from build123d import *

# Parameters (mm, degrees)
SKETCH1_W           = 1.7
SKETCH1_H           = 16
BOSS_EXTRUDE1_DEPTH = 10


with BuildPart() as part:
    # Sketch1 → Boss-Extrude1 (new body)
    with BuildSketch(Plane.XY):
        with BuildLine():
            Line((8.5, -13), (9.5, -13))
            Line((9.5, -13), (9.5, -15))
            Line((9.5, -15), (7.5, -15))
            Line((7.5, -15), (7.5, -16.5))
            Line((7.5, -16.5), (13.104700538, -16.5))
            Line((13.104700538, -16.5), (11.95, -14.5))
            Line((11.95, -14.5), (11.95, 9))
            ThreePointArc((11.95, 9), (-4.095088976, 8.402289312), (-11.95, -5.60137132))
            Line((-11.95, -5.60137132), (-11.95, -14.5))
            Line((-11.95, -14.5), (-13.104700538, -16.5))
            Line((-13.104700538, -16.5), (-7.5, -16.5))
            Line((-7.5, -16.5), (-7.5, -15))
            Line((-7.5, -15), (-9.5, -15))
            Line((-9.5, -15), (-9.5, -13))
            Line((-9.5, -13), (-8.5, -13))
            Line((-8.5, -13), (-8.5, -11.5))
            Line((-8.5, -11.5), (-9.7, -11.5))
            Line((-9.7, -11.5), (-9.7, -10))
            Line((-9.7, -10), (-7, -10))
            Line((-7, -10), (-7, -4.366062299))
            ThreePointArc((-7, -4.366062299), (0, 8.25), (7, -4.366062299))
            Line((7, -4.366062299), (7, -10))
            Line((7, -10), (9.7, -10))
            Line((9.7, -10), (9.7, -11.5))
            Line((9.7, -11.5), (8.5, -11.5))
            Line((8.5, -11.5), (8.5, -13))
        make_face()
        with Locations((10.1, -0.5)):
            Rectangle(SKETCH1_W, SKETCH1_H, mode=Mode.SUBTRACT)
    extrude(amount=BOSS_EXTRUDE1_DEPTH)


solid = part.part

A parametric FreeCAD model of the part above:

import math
import FreeCAD as App
import Part
import Sketcher

V = App.Vector
Q = App.Units.Quantity


def add_polygon(sketch, points):
    """Adds a closed chain of lines whose ends are joined by coincident constraints."""
    first, n = sketch.GeometryCount, len(points)
    for a, b in zip(points, points[1:] + points[:1]):
        sketch.addGeometry(Part.LineSegment(App.Vector(*a, 0), App.Vector(*b, 0)), False)
    for i in range(n):
        sketch.addConstraint(Sketcher.Constraint("Coincident", first + i, 2, first + (i + 1) % n, 1))

doc = App.newDocument("Part")
body = doc.addObject("PartDesign::Body", "Body")

# Sketch on XY plane
sketch1 = body.newObject("Sketcher::SketchObject", "Sketch")
sketch1.AttachmentSupport = (doc.getObject("XY_Plane"), [""])
sketch1.MapMode = "FlatFace"
sketch1.addGeometry(Part.LineSegment(V(8.5, -13, 0), V(9.5, -13, 0)), False)  # 0
sketch1.addGeometry(Part.LineSegment(V(9.5, -13, 0), V(9.5, -15, 0)), False)  # 1
sketch1.addGeometry(Part.LineSegment(V(9.5, -15, 0), V(7.5, -15, 0)), False)  # 2
sketch1.addGeometry(Part.LineSegment(V(7.5, -15, 0), V(7.5, -16.5, 0)), False)  # 3
sketch1.addGeometry(Part.LineSegment(V(7.5, -16.5, 0), V(13.1, -16.5, 0)), False)  # 4
sketch1.addGeometry(Part.LineSegment(V(13.1, -16.5, 0), V(11.9, -14.5, 0)), False)  # 5
sketch1.addGeometry(Part.LineSegment(V(11.9, -14.5, 0), V(11.9, 9, 0)), False)  # 6
sketch1.addGeometry(Part.ArcOfCircle(Part.Circle(V(4.5, -5.6, 0), V(0, 0, 1), 16.4), math.radians(63), math.radians(180)), False)  # 7
sketch1.addGeometry(Part.LineSegment(V(-11.9, -5.6, 0), V(-11.9, -14.5, 0)), False)  # 8
sketch1.addGeometry(Part.LineSegment(V(-11.9, -14.5, 0), V(-13.1, -16.5, 0)), False)  # 9
sketch1.addGeometry(Part.LineSegment(V(-13.1, -16.5, 0), V(-7.5, -16.5, 0)), False)  # 10
sketch1.addGeometry(Part.LineSegment(V(-7.5, -16.5, 0), V(-7.5, -15, 0)), False)  # 11
sketch1.addGeometry(Part.LineSegment(V(-7.5, -15, 0), V(-9.5, -15, 0)), False)  # 12
sketch1.addGeometry(Part.LineSegment(V(-9.5, -15, 0), V(-9.5, -13, 0)), False)  # 13
sketch1.addGeometry(Part.LineSegment(V(-9.5, -13, 0), V(-8.5, -13, 0)), False)  # 14
sketch1.addGeometry(Part.LineSegment(V(-8.5, -13, 0), V(-8.5, -11.5, 0)), False)  # 15
sketch1.addGeometry(Part.LineSegment(V(-8.5, -11.5, 0), V(-9.7, -11.5, 0)), False)  # 16
sketch1.addGeometry(Part.LineSegment(V(-9.7, -11.5, 0), V(-9.7, -10, 0)), False)  # 17
sketch1.addGeometry(Part.LineSegment(V(-9.7, -10, 0), V(-7, -10, 0)), False)  # 18
sketch1.addGeometry(Part.LineSegment(V(-7, -10, 0), V(-7, -4.4, 0)), False)  # 19
sketch1.addGeometry(Part.ArcOfCircle(Part.Circle(V(0, 0, 0), V(0, 0, 1), 8.2), math.radians(-32), math.radians(212)), False)  # 20
sketch1.addGeometry(Part.LineSegment(V(7, -4.4, 0), V(7, -10, 0)), False)  # 21
sketch1.addGeometry(Part.LineSegment(V(7, -10, 0), V(9.7, -10, 0)), False)  # 22
sketch1.addGeometry(Part.LineSegment(V(9.7, -10, 0), V(9.7, -11.5, 0)), False)  # 23
sketch1.addGeometry(Part.LineSegment(V(9.7, -11.5, 0), V(8.5, -11.5, 0)), False)  # 24
sketch1.addGeometry(Part.LineSegment(V(8.5, -11.5, 0), V(8.5, -13, 0)), False)  # 25
add_polygon(sketch1, [(10.9, -8.5), (9.2, -8.5), (9.2, 7.5), (10.9, 7.5)])  # lines 26-29
sketch1.addConstraint([
    Sketcher.Constraint("Coincident", 0, 2, 1, 1),
    Sketcher.Constraint("Coincident", 1, 2, 2, 1),
    Sketcher.Constraint("Coincident", 2, 2, 3, 1),
    Sketcher.Constraint("Coincident", 3, 2, 4, 1),
    Sketcher.Constraint("Coincident", 4, 2, 5, 1),
    Sketcher.Constraint("Coincident", 5, 2, 6, 1),
    Sketcher.Constraint("Coincident", 6, 2, 7, 1),
    Sketcher.Constraint("Tangent", 7, 2, 8, 1),
    Sketcher.Constraint("Coincident", 8, 2, 9, 1),
    Sketcher.Constraint("Coincident", 9, 2, 10, 1),
    Sketcher.Constraint("Coincident", 10, 2, 11, 1),
    Sketcher.Constraint("Coincident", 11, 2, 12, 1),
    Sketcher.Constraint("Coincident", 12, 2, 13, 1),
    Sketcher.Constraint("Coincident", 13, 2, 14, 1),
    Sketcher.Constraint("Coincident", 14, 2, 15, 1),
    Sketcher.Constraint("Coincident", 15, 2, 16, 1),
    Sketcher.Constraint("Coincident", 16, 2, 17, 1),
    Sketcher.Constraint("Coincident", 17, 2, 18, 1),
    Sketcher.Constraint("Coincident", 18, 2, 19, 1),
    Sketcher.Constraint("Coincident", 19, 2, 20, 2),
    Sketcher.Constraint("Coincident", 20, 1, 21, 1),
    Sketcher.Constraint("Coincident", 21, 2, 22, 1),
    Sketcher.Constraint("Coincident", 22, 2, 23, 1),
    Sketcher.Constraint("Coincident", 23, 2, 24, 1),
    Sketcher.Constraint("Coincident", 24, 2, 25, 1),
    Sketcher.Constraint("Coincident", 25, 2, 0, 1),
    Sketcher.Constraint("Horizontal", 0),
    Sketcher.Constraint("Vertical", 1),
    Sketcher.Constraint("Horizontal", 2),
    Sketcher.Constraint("Vertical", 3),
    Sketcher.Constraint("Horizontal", 4),
    Sketcher.Constraint("Vertical", 6),
    Sketcher.Constraint("Vertical", 8),
    Sketcher.Constraint("Horizontal", 10),
    Sketcher.Constraint("Vertical", 11),
    Sketcher.Constraint("Horizontal", 12),
    Sketcher.Constraint("Vertical", 13),
    Sketcher.Constraint("Horizontal", 14),
    Sketcher.Constraint("Vertical", 15),
    Sketcher.Constraint("Horizontal", 16),
    Sketcher.Constraint("Vertical", 17),
    Sketcher.Constraint("Horizontal", 18),
    Sketcher.Constraint("Vertical", 19),
    Sketcher.Constraint("Vertical", 21),
    Sketcher.Constraint("Horizontal", 22),
    Sketcher.Constraint("Vertical", 23),
    Sketcher.Constraint("Horizontal", 24),
    Sketcher.Constraint("Vertical", 25),
    Sketcher.Constraint("Horizontal", 26),
    Sketcher.Constraint("Vertical", 27),
    Sketcher.Constraint("Horizontal", 28),
    Sketcher.Constraint("Vertical", 29),
    Sketcher.Constraint("Coincident", 20, 3, -1, 1),
    Sketcher.Constraint("Symmetric", 5, 2, 8, 2, -2),
    Sketcher.Constraint("Symmetric", 4, 2, 9, 2, -2),
    Sketcher.Constraint("Symmetric", 2, 2, 11, 2, -2),
    Sketcher.Constraint("Symmetric", 0, 2, 13, 2, -2),
    Sketcher.Constraint("Symmetric", 18, 2, 21, 2, -2),
    Sketcher.Constraint("Symmetric", 16, 2, 23, 2, -2),
    Sketcher.Constraint("Equal", 0, 14),
    Sketcher.Constraint("Equal", 12, 1),
    Sketcher.Constraint("Equal", 11, 15),
    Sketcher.Constraint("Equal", 15, 17),
    Sketcher.Constraint("DistanceX", 0, 1, 0, 2, 1.0),
    Sketcher.Constraint("DistanceX", 2, 2, 2, 1, 2.0),
    Sketcher.Constraint("DistanceY", 27, 1, 27, 2, 16.0),
    Sketcher.Constraint("Angle", 5, Q("120 deg")),
    Sketcher.Constraint("Radius", 20, 8.25),
    Sketcher.Constraint("DistanceX", 16, 2, 16, 1, 1.2),
    Sketcher.Constraint("DistanceX", 18, 1, 18, 2, 2.7),
    Sketcher.Constraint("DistanceX", 26, 2, 26, 1, 1.7),
    Sketcher.Constraint("DistanceY", 3, 2, 3, 1, 1.5),
    Sketcher.Constraint("DistanceY", 6, 1, 6, 2, 23.5),
    Sketcher.Constraint("DistanceY", 0, 2, -1, 1, 13.0),
    Sketcher.Constraint("DistanceY", -1, 1, 6, 2, 9.0),
    Sketcher.Constraint("DistanceX", 18, 2, -1, 1, 7.0),
    Sketcher.Constraint("DistanceY", 23, 2, 26, 2, 3.0),
    Sketcher.Constraint("DistanceX", 28, 2, 6, 2, 1.0),
    Sketcher.Constraint("DistanceX", -1, 1, 5, 2, 11.95),
    Sketcher.Constraint("Radius", 7, 16.410252),
])
pad1 = body.newObject("PartDesign::Pad", "Pad")
pad1.Profile = sketch1
pad1.Length = 10

doc.recompute()
